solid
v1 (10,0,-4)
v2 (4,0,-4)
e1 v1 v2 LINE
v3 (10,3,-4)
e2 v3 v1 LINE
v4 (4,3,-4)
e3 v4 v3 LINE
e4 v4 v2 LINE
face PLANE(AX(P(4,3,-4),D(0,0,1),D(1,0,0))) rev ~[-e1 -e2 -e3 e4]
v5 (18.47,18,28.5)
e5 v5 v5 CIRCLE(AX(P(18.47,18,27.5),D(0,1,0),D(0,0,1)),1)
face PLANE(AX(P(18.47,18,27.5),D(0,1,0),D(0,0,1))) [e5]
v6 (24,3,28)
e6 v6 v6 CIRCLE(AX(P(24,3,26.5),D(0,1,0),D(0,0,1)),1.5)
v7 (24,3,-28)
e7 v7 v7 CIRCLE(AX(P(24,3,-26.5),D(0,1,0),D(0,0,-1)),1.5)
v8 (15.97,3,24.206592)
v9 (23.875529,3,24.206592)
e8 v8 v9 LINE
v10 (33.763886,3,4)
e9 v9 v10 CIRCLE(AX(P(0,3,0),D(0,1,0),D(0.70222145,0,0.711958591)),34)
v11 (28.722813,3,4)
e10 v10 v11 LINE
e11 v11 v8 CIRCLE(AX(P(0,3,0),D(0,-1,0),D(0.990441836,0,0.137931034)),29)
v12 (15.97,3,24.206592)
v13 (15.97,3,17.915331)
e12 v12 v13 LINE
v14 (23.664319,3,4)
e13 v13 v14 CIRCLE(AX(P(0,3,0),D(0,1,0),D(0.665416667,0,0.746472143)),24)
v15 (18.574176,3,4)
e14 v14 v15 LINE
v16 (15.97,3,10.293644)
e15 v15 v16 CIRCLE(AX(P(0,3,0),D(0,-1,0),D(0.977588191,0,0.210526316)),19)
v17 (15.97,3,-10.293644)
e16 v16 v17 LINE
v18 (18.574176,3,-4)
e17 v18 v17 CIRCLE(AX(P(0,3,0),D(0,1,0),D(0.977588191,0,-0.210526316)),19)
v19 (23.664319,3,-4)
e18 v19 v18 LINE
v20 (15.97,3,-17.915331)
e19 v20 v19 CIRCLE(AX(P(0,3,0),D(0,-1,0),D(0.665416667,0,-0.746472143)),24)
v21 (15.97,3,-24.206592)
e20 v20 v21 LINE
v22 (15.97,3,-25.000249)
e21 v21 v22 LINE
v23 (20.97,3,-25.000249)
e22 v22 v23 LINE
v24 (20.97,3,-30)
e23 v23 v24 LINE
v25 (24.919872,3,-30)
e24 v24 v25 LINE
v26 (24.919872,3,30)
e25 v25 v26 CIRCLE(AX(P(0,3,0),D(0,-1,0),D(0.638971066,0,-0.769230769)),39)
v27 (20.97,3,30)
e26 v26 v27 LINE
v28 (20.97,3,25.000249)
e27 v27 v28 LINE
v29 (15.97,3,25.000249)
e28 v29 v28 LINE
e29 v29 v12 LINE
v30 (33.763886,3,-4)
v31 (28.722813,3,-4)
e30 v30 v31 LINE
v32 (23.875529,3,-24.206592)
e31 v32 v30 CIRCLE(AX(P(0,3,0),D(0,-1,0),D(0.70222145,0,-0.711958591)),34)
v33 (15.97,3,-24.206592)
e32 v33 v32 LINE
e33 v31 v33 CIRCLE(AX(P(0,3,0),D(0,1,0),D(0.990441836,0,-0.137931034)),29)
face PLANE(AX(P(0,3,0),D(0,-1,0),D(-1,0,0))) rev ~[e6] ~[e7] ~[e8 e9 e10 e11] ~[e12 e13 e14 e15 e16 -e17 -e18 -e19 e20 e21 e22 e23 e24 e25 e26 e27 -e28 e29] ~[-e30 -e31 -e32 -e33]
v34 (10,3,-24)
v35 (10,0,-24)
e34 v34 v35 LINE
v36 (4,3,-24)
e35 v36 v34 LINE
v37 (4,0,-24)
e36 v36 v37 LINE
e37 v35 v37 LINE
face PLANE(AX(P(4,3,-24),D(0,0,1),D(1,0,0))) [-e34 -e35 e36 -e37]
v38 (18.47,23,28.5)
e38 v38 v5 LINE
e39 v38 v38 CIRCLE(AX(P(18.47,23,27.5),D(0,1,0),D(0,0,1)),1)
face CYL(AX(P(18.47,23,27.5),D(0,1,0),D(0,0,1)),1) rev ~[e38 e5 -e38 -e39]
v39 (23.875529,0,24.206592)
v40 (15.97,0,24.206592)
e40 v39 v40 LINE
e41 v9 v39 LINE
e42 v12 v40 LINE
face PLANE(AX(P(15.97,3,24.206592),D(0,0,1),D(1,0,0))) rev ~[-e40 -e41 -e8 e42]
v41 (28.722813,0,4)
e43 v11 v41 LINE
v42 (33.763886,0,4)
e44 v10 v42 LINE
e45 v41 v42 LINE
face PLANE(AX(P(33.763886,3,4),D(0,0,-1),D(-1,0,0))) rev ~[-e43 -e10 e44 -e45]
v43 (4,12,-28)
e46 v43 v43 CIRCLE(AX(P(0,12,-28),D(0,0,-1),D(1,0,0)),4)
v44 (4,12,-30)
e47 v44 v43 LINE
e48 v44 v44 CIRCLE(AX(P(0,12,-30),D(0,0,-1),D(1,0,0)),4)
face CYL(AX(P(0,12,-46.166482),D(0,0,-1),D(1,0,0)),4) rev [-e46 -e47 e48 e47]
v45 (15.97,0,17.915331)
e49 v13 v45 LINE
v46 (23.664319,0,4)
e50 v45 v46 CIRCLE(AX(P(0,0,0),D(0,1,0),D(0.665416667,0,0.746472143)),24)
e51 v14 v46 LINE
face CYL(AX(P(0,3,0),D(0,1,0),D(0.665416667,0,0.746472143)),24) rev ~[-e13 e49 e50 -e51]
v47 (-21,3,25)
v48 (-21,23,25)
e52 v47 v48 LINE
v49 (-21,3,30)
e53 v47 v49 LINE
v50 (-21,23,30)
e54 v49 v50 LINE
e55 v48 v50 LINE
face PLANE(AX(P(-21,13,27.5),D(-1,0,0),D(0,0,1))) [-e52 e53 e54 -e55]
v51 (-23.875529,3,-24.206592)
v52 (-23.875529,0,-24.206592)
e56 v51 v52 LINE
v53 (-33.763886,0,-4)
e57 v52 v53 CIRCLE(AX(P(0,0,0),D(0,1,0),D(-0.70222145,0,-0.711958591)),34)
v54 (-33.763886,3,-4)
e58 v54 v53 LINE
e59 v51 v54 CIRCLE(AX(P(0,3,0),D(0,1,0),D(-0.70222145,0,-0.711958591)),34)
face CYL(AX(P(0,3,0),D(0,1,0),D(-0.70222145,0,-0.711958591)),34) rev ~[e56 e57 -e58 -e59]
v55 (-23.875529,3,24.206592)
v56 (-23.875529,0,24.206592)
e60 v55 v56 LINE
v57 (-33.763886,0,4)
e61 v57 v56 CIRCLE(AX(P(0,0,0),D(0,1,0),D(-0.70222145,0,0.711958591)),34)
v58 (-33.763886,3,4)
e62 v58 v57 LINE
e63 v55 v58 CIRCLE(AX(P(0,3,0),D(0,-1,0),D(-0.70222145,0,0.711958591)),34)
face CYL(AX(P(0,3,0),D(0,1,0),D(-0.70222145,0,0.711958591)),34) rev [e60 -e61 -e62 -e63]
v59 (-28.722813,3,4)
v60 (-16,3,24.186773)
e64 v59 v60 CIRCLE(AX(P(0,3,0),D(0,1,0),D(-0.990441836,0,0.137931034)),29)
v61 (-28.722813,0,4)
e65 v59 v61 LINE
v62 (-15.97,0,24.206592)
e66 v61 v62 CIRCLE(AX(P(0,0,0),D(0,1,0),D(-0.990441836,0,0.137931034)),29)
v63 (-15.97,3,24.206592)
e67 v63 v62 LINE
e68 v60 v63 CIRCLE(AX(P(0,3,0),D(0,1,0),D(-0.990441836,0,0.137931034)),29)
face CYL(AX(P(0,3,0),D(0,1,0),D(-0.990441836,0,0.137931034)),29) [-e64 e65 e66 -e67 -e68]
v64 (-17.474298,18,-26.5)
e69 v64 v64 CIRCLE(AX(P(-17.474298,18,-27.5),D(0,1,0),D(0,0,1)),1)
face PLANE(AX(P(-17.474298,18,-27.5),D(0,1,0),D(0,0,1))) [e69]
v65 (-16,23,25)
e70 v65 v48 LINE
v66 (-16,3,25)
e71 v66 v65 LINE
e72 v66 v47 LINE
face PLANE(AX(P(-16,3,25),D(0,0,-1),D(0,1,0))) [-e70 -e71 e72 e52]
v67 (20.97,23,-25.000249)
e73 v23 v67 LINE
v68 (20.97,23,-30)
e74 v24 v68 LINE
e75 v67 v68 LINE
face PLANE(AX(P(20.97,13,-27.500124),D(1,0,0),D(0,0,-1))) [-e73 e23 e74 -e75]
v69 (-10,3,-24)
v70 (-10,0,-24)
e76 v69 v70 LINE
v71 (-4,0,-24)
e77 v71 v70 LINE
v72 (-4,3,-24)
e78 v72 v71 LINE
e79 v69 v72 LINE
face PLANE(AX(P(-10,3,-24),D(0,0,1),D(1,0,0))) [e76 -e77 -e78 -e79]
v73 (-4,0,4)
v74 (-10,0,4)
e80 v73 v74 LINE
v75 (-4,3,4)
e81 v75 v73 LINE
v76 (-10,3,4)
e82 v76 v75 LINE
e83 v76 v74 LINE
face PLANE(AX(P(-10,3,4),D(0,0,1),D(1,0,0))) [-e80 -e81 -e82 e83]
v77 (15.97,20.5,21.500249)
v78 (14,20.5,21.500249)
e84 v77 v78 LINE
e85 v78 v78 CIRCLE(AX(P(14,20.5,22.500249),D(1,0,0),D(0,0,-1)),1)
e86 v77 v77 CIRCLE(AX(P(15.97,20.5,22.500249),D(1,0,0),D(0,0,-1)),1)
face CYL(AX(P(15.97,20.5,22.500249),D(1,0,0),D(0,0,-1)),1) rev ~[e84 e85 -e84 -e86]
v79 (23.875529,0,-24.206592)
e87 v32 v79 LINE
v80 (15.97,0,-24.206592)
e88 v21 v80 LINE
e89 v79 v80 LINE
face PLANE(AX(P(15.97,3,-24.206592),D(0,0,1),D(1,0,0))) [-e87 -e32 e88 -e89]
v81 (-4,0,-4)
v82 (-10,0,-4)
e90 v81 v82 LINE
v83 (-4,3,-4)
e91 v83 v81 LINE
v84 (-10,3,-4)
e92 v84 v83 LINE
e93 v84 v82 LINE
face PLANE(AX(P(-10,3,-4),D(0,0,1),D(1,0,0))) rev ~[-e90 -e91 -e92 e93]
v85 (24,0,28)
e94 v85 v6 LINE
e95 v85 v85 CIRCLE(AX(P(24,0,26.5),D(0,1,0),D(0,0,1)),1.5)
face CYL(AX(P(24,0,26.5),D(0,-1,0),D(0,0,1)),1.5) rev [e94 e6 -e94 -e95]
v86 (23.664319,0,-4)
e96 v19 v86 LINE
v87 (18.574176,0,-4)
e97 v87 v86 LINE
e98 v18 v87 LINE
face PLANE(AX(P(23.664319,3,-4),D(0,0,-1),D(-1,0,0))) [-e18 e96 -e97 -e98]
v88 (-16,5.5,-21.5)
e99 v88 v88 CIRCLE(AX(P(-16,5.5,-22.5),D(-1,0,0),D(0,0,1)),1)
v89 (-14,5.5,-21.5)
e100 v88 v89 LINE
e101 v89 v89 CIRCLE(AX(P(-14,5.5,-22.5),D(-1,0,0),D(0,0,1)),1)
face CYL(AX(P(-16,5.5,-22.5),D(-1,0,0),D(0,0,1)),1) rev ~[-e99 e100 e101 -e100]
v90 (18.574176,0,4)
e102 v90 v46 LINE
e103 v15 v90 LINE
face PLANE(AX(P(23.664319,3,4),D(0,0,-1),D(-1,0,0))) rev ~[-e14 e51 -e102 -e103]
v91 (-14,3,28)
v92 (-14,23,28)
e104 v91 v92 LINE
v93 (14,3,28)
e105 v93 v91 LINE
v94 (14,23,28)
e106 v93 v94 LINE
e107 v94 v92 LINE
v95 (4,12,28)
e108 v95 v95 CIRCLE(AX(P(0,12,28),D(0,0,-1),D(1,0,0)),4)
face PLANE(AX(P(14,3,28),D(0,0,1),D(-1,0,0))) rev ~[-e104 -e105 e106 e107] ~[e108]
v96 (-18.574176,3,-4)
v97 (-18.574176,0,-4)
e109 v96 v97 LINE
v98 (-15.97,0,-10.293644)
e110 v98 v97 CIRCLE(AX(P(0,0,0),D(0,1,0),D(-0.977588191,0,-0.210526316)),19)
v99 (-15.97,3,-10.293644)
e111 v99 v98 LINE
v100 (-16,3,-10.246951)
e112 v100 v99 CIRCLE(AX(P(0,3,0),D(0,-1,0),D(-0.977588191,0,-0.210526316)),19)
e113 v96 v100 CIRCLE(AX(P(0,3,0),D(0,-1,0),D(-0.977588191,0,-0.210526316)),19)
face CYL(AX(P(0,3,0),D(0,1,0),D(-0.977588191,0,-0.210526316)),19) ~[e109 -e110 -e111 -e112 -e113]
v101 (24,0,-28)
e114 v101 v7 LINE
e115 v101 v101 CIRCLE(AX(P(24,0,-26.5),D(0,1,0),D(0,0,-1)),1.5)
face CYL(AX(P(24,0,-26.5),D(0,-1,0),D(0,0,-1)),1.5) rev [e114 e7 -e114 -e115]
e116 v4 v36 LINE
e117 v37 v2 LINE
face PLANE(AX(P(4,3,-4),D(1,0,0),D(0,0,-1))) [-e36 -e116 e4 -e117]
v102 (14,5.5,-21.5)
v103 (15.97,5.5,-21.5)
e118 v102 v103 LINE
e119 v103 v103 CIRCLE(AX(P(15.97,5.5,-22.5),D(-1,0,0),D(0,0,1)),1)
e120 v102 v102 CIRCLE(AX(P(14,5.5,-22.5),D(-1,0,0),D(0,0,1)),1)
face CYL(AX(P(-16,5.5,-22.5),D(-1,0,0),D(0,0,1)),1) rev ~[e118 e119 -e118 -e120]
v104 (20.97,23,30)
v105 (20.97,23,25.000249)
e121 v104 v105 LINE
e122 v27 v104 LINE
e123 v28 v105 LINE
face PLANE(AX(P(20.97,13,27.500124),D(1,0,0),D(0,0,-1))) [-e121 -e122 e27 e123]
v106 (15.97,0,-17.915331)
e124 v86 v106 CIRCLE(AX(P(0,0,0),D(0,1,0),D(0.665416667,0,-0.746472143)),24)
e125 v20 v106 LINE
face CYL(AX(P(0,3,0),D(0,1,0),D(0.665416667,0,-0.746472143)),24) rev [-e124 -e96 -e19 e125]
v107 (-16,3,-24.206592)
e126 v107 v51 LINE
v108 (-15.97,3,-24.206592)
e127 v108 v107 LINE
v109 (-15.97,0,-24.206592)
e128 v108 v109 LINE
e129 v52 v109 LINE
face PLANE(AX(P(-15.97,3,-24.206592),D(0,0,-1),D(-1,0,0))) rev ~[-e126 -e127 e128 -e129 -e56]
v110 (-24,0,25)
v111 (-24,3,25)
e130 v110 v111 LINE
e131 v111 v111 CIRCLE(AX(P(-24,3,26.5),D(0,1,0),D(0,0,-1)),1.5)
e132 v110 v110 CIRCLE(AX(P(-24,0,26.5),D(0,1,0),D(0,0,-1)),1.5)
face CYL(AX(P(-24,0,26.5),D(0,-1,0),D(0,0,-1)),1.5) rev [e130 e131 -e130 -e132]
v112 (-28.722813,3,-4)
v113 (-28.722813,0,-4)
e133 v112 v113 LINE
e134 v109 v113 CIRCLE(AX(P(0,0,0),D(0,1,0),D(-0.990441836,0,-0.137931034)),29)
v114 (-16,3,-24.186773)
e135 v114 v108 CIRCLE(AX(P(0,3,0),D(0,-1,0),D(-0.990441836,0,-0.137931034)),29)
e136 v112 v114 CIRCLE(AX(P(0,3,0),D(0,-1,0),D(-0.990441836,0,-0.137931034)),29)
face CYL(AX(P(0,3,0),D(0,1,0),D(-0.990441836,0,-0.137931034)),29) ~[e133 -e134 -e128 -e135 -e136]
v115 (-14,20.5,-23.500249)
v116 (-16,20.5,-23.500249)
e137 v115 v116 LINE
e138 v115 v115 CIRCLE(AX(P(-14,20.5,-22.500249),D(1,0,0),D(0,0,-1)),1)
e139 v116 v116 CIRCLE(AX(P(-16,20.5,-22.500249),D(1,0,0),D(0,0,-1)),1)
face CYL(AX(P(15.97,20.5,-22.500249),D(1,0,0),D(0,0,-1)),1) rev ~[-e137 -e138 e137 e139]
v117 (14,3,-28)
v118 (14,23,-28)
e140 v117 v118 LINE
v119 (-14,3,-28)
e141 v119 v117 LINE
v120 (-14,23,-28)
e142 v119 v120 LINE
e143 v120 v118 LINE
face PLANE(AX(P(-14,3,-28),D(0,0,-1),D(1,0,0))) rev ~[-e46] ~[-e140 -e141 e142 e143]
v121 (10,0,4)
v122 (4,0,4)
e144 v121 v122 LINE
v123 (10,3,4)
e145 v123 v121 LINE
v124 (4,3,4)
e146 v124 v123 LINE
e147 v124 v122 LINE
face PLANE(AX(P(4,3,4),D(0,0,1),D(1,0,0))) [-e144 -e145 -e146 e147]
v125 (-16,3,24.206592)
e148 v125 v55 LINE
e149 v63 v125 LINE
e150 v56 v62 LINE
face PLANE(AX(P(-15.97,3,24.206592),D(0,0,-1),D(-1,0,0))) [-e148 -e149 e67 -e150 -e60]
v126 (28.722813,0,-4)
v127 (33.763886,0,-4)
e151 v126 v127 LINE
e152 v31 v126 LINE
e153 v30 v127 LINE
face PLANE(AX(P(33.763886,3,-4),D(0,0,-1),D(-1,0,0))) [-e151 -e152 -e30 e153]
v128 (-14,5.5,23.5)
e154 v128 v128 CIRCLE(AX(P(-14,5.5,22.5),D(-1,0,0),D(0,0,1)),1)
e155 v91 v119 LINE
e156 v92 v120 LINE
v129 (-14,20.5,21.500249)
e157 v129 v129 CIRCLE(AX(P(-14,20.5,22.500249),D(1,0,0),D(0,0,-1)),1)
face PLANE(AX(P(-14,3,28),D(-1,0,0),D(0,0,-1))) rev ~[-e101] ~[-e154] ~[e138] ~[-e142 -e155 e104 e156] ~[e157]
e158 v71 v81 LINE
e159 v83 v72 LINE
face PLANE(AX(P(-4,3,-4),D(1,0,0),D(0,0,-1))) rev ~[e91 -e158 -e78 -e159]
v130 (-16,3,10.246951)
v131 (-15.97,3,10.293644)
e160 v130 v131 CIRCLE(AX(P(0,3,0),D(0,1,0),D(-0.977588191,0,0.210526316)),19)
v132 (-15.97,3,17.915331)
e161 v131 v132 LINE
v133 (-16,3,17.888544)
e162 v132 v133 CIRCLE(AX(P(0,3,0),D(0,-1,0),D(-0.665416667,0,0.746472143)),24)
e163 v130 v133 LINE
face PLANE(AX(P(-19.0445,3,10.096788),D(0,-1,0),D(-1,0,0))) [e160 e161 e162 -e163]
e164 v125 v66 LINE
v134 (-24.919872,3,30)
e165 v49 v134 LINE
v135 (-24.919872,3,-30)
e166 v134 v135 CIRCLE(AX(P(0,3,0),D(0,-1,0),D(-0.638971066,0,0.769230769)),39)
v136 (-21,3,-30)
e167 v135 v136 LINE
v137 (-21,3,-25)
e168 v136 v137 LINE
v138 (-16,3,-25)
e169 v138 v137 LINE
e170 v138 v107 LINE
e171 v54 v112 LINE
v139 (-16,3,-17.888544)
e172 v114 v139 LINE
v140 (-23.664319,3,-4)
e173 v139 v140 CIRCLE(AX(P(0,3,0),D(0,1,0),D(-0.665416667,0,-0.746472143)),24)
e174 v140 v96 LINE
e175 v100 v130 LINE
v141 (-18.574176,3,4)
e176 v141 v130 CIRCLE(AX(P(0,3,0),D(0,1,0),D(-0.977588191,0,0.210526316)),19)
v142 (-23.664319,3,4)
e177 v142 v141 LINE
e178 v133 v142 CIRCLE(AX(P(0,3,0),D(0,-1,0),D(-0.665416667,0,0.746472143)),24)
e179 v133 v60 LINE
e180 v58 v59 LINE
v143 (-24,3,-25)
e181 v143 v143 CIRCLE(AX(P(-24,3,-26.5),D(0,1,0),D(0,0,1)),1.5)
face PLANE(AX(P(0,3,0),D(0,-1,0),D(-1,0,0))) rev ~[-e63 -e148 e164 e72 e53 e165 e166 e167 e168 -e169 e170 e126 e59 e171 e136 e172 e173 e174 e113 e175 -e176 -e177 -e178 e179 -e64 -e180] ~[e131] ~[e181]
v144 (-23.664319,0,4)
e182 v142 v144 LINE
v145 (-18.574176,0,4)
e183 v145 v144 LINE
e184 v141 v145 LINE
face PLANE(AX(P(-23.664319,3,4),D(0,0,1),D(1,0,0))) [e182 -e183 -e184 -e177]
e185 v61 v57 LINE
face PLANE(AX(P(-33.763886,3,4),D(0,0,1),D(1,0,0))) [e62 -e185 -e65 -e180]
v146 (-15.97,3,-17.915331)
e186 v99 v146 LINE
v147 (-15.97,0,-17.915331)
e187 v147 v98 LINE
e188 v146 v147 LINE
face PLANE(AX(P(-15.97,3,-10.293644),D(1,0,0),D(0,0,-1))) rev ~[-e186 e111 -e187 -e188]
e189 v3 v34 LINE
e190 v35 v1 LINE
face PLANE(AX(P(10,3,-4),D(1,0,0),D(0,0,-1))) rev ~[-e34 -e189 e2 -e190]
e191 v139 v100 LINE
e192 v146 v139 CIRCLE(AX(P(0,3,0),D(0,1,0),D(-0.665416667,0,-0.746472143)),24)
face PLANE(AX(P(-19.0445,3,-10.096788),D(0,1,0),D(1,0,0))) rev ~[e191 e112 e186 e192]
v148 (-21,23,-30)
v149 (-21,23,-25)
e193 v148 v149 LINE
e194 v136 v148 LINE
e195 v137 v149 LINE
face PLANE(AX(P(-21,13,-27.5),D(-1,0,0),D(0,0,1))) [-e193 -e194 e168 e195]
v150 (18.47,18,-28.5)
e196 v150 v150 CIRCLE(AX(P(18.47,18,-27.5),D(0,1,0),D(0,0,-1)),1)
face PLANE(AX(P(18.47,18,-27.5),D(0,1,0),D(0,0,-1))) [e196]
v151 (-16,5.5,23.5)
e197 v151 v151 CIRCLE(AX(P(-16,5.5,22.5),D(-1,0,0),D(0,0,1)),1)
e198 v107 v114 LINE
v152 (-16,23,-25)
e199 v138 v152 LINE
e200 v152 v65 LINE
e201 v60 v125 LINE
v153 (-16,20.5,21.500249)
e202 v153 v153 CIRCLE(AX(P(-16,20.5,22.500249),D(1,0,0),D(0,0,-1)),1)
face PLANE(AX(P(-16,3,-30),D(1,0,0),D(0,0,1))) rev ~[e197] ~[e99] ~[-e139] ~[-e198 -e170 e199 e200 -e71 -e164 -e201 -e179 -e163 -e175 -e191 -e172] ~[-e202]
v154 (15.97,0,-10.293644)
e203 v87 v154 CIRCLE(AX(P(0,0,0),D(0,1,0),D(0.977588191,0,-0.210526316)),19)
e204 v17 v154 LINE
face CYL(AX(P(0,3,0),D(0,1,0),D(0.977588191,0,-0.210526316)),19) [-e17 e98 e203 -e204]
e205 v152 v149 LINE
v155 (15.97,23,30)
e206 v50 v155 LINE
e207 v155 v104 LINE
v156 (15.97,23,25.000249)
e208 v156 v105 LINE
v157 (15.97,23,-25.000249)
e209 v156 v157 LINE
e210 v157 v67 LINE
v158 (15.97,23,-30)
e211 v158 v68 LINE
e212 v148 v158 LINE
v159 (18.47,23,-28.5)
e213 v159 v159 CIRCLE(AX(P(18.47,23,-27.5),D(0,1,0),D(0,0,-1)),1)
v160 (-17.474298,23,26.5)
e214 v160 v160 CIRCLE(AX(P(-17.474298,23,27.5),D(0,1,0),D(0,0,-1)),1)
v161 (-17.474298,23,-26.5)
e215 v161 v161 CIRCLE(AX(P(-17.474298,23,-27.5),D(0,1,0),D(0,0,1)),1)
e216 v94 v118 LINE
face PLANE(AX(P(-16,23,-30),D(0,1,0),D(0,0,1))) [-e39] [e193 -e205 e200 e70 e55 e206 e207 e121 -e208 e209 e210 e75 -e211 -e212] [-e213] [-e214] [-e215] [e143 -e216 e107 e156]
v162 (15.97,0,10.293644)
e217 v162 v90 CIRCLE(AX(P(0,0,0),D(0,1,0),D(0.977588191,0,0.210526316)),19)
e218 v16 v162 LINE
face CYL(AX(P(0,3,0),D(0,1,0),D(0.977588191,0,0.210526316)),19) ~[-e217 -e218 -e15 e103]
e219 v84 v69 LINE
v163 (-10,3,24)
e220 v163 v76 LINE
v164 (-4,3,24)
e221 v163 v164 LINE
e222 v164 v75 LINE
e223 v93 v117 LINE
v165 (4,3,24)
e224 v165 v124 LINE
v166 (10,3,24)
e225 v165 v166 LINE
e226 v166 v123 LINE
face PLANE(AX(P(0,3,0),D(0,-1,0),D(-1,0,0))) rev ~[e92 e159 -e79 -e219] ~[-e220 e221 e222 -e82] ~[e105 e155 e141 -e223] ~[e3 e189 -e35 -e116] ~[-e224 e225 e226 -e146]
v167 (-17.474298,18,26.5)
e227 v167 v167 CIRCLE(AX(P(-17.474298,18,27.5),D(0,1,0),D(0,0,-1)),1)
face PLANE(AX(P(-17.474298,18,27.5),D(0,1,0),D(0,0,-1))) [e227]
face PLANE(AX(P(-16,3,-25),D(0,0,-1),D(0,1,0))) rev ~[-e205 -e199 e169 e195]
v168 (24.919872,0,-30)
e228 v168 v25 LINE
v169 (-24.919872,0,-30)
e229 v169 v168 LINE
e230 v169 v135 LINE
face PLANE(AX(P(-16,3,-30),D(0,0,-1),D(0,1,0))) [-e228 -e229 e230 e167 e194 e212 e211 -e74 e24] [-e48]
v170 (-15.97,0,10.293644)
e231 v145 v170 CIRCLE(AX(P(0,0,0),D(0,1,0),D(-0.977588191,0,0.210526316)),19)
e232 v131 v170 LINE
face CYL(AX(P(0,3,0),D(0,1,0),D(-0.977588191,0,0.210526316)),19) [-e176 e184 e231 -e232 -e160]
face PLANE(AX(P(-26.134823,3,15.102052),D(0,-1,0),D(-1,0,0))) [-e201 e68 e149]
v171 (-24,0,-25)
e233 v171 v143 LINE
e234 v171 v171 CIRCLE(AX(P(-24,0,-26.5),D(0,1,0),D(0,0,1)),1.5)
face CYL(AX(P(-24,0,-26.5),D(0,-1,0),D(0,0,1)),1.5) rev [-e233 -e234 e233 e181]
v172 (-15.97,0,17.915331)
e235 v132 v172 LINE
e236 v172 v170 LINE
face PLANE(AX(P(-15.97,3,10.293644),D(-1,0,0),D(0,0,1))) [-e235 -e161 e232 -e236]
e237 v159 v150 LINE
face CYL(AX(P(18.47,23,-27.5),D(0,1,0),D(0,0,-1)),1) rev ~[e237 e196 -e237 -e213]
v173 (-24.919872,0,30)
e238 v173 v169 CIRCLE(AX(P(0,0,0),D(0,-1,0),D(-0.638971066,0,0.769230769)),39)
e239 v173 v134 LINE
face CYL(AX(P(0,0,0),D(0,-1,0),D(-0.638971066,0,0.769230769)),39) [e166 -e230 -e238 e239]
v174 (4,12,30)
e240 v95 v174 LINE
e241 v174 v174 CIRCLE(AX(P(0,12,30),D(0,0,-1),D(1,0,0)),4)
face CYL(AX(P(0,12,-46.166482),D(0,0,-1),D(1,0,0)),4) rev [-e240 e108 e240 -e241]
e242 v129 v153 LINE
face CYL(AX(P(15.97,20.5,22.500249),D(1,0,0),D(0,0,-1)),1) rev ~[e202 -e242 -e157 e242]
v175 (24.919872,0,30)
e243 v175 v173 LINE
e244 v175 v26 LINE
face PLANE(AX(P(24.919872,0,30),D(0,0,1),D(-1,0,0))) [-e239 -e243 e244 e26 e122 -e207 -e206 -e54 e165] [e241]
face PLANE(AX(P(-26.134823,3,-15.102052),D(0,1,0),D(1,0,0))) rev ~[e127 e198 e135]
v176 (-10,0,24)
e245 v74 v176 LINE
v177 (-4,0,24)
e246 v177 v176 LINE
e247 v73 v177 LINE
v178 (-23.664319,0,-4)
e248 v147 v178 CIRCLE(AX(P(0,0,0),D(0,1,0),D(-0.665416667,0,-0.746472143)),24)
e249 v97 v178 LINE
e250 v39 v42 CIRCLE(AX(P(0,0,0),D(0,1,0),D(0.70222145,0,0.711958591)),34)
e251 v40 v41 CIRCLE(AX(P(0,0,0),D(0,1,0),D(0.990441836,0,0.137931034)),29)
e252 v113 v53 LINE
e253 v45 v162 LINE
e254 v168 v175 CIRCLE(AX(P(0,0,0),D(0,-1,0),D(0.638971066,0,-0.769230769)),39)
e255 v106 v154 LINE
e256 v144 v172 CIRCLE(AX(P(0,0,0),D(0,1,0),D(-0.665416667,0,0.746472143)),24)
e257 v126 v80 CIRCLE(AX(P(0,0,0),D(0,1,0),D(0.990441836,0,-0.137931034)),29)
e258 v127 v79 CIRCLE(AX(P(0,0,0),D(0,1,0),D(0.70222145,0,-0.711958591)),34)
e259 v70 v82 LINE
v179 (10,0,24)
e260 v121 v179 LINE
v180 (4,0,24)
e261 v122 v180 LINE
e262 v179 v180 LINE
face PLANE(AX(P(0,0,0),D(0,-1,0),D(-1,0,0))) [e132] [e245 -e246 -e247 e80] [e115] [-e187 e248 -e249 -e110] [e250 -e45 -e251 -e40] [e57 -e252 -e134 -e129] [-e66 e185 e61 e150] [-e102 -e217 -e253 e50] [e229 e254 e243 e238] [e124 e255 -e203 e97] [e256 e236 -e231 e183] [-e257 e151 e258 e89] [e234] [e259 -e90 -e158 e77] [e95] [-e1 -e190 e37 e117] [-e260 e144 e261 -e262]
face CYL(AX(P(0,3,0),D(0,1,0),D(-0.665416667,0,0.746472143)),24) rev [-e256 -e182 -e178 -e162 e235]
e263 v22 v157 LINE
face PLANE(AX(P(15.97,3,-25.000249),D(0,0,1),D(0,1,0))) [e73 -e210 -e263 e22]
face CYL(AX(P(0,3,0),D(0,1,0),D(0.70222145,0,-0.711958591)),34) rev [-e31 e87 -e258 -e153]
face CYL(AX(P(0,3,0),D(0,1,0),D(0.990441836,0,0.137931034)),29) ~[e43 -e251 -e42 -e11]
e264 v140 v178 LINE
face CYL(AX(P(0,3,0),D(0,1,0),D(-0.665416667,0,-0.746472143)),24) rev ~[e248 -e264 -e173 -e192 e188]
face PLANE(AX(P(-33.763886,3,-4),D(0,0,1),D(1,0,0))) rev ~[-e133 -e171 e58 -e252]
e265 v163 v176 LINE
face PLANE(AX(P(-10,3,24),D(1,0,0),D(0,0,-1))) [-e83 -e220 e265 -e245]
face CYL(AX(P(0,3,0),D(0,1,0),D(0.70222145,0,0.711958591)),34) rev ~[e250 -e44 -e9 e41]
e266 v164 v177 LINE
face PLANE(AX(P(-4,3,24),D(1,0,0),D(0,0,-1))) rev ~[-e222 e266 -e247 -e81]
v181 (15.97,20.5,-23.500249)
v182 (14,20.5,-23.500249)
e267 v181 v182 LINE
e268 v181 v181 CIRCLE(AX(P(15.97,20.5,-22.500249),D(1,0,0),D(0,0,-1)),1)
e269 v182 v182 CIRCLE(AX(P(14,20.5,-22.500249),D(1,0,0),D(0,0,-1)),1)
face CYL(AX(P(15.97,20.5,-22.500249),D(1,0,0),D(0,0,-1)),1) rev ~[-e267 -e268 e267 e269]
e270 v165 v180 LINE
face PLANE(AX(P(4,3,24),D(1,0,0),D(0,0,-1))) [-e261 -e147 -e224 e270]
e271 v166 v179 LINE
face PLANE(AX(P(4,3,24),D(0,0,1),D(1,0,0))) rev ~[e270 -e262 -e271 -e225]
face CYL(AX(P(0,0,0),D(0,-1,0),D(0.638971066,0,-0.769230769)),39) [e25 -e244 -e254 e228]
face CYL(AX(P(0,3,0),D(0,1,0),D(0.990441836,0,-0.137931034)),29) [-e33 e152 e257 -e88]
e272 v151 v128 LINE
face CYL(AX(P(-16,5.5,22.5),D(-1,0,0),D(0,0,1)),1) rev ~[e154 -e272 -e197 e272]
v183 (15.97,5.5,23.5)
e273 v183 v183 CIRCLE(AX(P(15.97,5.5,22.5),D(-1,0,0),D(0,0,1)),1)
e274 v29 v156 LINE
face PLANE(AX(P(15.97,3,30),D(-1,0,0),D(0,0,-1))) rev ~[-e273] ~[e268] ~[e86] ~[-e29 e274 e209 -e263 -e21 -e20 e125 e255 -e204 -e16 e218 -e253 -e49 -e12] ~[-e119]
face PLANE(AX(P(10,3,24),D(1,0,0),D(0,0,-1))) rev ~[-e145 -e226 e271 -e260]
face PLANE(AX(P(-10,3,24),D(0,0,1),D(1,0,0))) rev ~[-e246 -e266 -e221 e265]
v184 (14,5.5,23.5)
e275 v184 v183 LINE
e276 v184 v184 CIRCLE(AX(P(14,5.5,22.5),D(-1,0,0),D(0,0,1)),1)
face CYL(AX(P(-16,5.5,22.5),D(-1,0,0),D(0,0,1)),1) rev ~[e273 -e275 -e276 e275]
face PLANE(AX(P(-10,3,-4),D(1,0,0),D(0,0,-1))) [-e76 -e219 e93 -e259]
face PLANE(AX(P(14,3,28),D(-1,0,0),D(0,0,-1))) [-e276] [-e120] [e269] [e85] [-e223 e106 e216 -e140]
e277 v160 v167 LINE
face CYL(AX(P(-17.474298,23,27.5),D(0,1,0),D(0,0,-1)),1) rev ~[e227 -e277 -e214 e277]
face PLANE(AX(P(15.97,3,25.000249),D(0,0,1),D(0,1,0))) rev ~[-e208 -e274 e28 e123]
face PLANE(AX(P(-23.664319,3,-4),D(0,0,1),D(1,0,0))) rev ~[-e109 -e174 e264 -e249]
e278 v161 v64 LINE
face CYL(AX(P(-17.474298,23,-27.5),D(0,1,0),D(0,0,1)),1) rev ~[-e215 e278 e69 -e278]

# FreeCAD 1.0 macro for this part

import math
import FreeCAD as App
import Part
import Sketcher
from FreeCAD import Vector


def add_polygon(sketch, points):
    """Adds a closed chain of lines whose ends are joined by coincident constraints."""
    first, n = sketch.GeometryCount, len(points)
    for a, b in zip(points, points[1:] + points[:1]):
        sketch.addGeometry(Part.LineSegment(App.Vector(*a, 0), App.Vector(*b, 0)), False)
    for i in range(n):
        sketch.addConstraint(Sketcher.Constraint("Coincident", first + i, 2, first + (i + 1) % n, 1))

doc = App.newDocument("Part")
body = doc.addObject("PartDesign::Body", "Body")

sketch1 = body.newObject("Sketcher::SketchObject", "Sketch")
sketch1.AttachmentSupport = (doc.getObject("XZ_Plane"), [""])
sketch1.MapMode = "FlatFace"
sketch1.addGeometry([
    Part.LineSegment(Vector(24.919872, -30, 0), Vector(-24.919872, -30, 0)),
    Part.ArcOfCircle(Part.Circle(Vector(0, 0, 0), Vector(0, 0, 1), 39), math.radians(129.715137), math.radians(230.284863)),
    Part.LineSegment(Vector(-24.919872, 30, 0), Vector(24.919872, 30, 0)),
    Part.ArcOfCircle(Part.Circle(Vector(0, 0, 0), Vector(0, 0, 1), 39), math.radians(-50.284863), math.radians(50.284863)),
    Part.Circle(Vector(24, 26.5, 0), Vector(0, 0, 1), 1.5),
    Part.Circle(Vector(-24, 26.5, 0), Vector(0, 0, 1), 1.5),
    Part.Circle(Vector(24, -26.5, 0), Vector(0, 0, 1), 1.5),
    Part.Circle(Vector(-24, -26.5, 0), Vector(0, 0, 1), 1.5),
], False)
sketch1.addConstraint([
    Sketcher.Constraint("Coincident", 0, 2, 1, 2),
    Sketcher.Constraint("Coincident", 1, 1, 2, 1),
    Sketcher.Constraint("Coincident", 2, 2, 3, 2),
    Sketcher.Constraint("Coincident", 3, 1, 0, 1),
    Sketcher.Constraint("Horizontal", 0),
    Sketcher.Constraint("Horizontal", 2),
    Sketcher.Constraint("Coincident", 1, 3, -1, 1),
    Sketcher.Constraint("Coincident", 3, 3, -1, 1),
    Sketcher.Constraint("Equal", 1, 3),
    Sketcher.Constraint("Equal", 4, 5),
    Sketcher.Constraint("Equal", 5, 6),
    Sketcher.Constraint("Equal", 6, 7),
    Sketcher.Constraint("Symmetric", 5, 3, 6, 3, -1, 1),
    Sketcher.Constraint("Symmetric", 4, 3, 7, 3, -1, 1),
    Sketcher.Constraint("Symmetric", 4, 3, 5, 3, -2),
    Sketcher.Constraint("Vertical", 0, 2, 1, 1),
    Sketcher.Constraint("Diameter", 4, 3.0),
    Sketcher.Constraint("Radius", 1, 39.0),
    Sketcher.Constraint("DistanceX", -1, 1, 4, 3, 24.0),
    Sketcher.Constraint("DistanceY", 0, 2, -1, 1, 30.0),
    Sketcher.Constraint("DistanceY", 6, 3, 4, 3, 53.0),
])
pad1 = body.newObject("PartDesign::Pad", "Pad")
pad1.Profile = sketch1
pad1.Length = 3
pad1.Reversed = True

sketch2 = body.newObject("Sketcher::SketchObject", "Sketch001")
sketch2.AttachmentSupport = (doc.getObject("XZ_Plane"), [""])
sketch2.MapMode = "FlatFace"
sketch2.AttachmentOffset = App.Placement(Vector(0, 0, -3), App.Rotation())
add_polygon(sketch2, [(15.97, -30), (-16, -30), (-16, 30), (15.97, 30)])
add_polygon(sketch2, [(-14, 28), (-14, -28), (14, -28), (14, 28)])
sketch2.addConstraint([
    Sketcher.Constraint("Horizontal", 0),
    Sketcher.Constraint("Vertical", 1),
    Sketcher.Constraint("Horizontal", 2),
    Sketcher.Constraint("Vertical", 3),
    Sketcher.Constraint("Vertical", 4),
    Sketcher.Constraint("Horizontal", 5),
    Sketcher.Constraint("Vertical", 6),
    Sketcher.Constraint("Horizontal", 7),
    Sketcher.Constraint("Symmetric", 4, 2, 6, 2, -1, 1),
    Sketcher.Constraint("DistanceX", 5, 1, 5, 2, 28.0),
    Sketcher.Constraint("DistanceY", 1, 1, 1, 2, 60.0),
    Sketcher.Constraint("DistanceY", 4, 2, 4, 1, 56.0),
    Sketcher.Constraint("DistanceX", 0, 2, -1, 1, 16.0),
    Sketcher.Constraint("DistanceY", 0, 2, -1, 1, 30.0),
    Sketcher.Constraint("DistanceX", 0, 2, 0, 1, 31.97),
])
pad2 = body.newObject("PartDesign::Pad", "Pad001")
pad2.Profile = sketch2
pad2.Length = 20
pad2.Reversed = True

sketch3 = body.newObject("Sketcher::SketchObject", "Sketch002")
sketch3.AttachmentSupport = (doc.getObject("YZ_Plane"), [""])
sketch3.MapMode = "FlatFace"
sketch3.AttachmentOffset = App.Placement(Vector(0, 0, 15.97), App.Rotation())
add_polygon(sketch3, [(23, -25.000249), (3, -25.000249), (3, -30), (23, -30)])
add_polygon(sketch3, [(23, 30), (3, 30), (3, 25.000249), (23, 25.000249)])
sketch3.addConstraint([
    Sketcher.Constraint("Horizontal", 0),
    Sketcher.Constraint("Vertical", 1),
    Sketcher.Constraint("Horizontal", 2),
    Sketcher.Constraint("Vertical", 3),
    Sketcher.Constraint("Horizontal", 4),
    Sketcher.Constraint("Vertical", 5),
    Sketcher.Constraint("Horizontal", 6),
    Sketcher.Constraint("Vertical", 7),
    Sketcher.Constraint("Symmetric", 1, 2, 4, 2, -1),
    Sketcher.Constraint("Symmetric", 3, 2, 6, 2, -1),
    Sketcher.Constraint("DistanceX", 0, 2, 0, 1, 20.0),
    Sketcher.Constraint("DistanceX", -1, 1, 0, 2, 3.0),
    Sketcher.Constraint("DistanceY", 1, 2, -1, 1, 30.0),
    Sketcher.Constraint("DistanceY", 1, 2, 1, 1, 4.999751),
])
pad3 = body.newObject("PartDesign::Pad", "Pad002")
pad3.Profile = sketch3
pad3.Length = 5

sketch4 = body.newObject("Sketcher::SketchObject", "Sketch003")
sketch4.AttachmentSupport = (doc.getObject("YZ_Plane"), [""])
sketch4.MapMode = "FlatFace"
sketch4.AttachmentOffset = App.Placement(Vector(0, 0, -16), App.Rotation())
add_polygon(sketch4, [(23, -30), (3, -30), (3, -25), (23, -25)])
add_polygon(sketch4, [(23, 25), (3, 25), (3, 30), (23, 30)])
sketch4.addConstraint([
    Sketcher.Constraint("Horizontal", 0),
    Sketcher.Constraint("Vertical", 1),
    Sketcher.Constraint("Horizontal", 2),
    Sketcher.Constraint("Vertical", 3),
    Sketcher.Constraint("Horizontal", 4),
    Sketcher.Constraint("Vertical", 5),
    Sketcher.Constraint("Horizontal", 6),
    Sketcher.Constraint("Vertical", 7),
    Sketcher.Constraint("Symmetric", 1, 2, 4, 2, -1),
    Sketcher.Constraint("Symmetric", 3, 2, 6, 2, -1),
    Sketcher.Constraint("DistanceX", 0, 2, 0, 1, 20.0),
    Sketcher.Constraint("DistanceY", 1, 1, 1, 2, 5.0),
    Sketcher.Constraint("DistanceX", -1, 1, 0, 2, 3.0),
    Sketcher.Constraint("DistanceY", 0, 2, -1, 1, 30.0),
])
pad4 = body.newObject("PartDesign::Pad", "Pad003")
pad4.Profile = sketch4
pad4.Length = 5
pad4.Reversed = True

sketch5 = body.newObject("Sketcher::SketchObject", "Sketch004")
sketch5.AttachmentSupport = (doc.getObject("XZ_Plane"), [""])
sketch5.MapMode = "FlatFace"
sketch5.AttachmentOffset = App.Placement(Vector(0, 0, -23), App.Rotation())
sketch5.addGeometry([
    Part.Circle(Vector(18.47, 27.5, 0), Vector(0, 0, 1), 1),
    Part.Circle(Vector(18.47, -27.5, 0), Vector(0, 0, 1), 1),
    Part.Circle(Vector(-17.474298, 27.5, 0), Vector(0, 0, 1), 1),
    Part.Circle(Vector(-17.474298, -27.5, 0), Vector(0, 0, 1), 1),
], False)
sketch5.addConstraint([
    Sketcher.Constraint("Equal", 0, 1),
    Sketcher.Constraint("Equal", 1, 2),
    Sketcher.Constraint("Equal", 2, 3),
    Sketcher.Constraint("Symmetric", 0, 3, 1, 3, -1),
    Sketcher.Constraint("Symmetric", 2, 3, 3, 3, -1),
    Sketcher.Constraint("Horizontal", 0, 3, 2, 3),
    Sketcher.Constraint("Diameter", 0, 2.0),
    Sketcher.Constraint("DistanceY", 1, 3, 0, 3, 55.0),
    Sketcher.Constraint("DistanceX", -1, 1, 0, 3, 18.47),
    Sketcher.Constraint("DistanceX", 2, 3, -1, 1, 17.474298),
])
pocket1 = body.newObject("PartDesign::Pocket", "Pocket")
pocket1.Profile = sketch5
pocket1.Length = 5
pocket1.Reversed = True

sketch6 = body.newObject("Sketcher::SketchObject", "Sketch005")
sketch6.AttachmentSupport = (doc.getObject("YZ_Plane"), [""])
sketch6.MapMode = "FlatFace"
sketch6.AttachmentOffset = App.Placement(Vector(0, 0, -16), App.Rotation())
sketch6.addGeometry([
    Part.Circle(Vector(5.5, -22.5, 0), Vector(0, 0, 1), 1),
    Part.Circle(Vector(5.5, 22.5, 0), Vector(0, 0, 1), 1),
], False)
sketch6.addConstraint([
    Sketcher.Constraint("Equal", 0, 1),
    Sketcher.Constraint("Symmetric", 0, 3, 1, 3, -1),
    Sketcher.Constraint("Diameter", 0, 2.0),
    Sketcher.Constraint("DistanceY", 0, 3, 1, 3, 45.0),
    Sketcher.Constraint("DistanceX", -1, 1, 0, 3, 5.5),
])
pocket2 = body.newObject("PartDesign::Pocket", "Pocket001")
pocket2.Profile = sketch6
pocket2.Type = "ThroughAll"
pocket2.Reversed = True

sketch7 = body.newObject("Sketcher::SketchObject", "Sketch006")
sketch7.AttachmentSupport = (doc.getObject("YZ_Plane"), [""])
sketch7.MapMode = "FlatFace"
sketch7.AttachmentOffset = App.Placement(Vector(0, 0, 15.97), App.Rotation())
sketch7.addGeometry([
    Part.Circle(Vector(20.5, -22.500249, 0), Vector(0, 0, 1), 1),
    Part.Circle(Vector(20.5, 22.500249, 0), Vector(0, 0, 1), 1),
], False)
sketch7.addConstraint([
    Sketcher.Constraint("Equal", 0, 1),
    Sketcher.Constraint("Symmetric", 0, 3, 1, 3, -1),
    Sketcher.Constraint("Diameter", 0, 2.0),
    Sketcher.Constraint("DistanceX", -1, 1, 0, 3, 20.5),
    Sketcher.Constraint("DistanceY", 0, 3, -1, 1, 22.500249),
])
pocket3 = body.newObject("PartDesign::Pocket", "Pocket002")
pocket3.Profile = sketch7
pocket3.Type = "ThroughAll"

sketch8 = body.newObject("Sketcher::SketchObject", "Sketch007")
sketch8.AttachmentSupport = (doc.getObject("XZ_Plane"), [""])
sketch8.MapMode = "FlatFace"
sketch8.AttachmentOffset = App.Placement(Vector(0, 0, -3), App.Rotation())
sketch8.addGeometry(Part.LineSegment(Vector(15.97, -17.915331, 0), Vector(15.97, -10.293644, 0)), False)
sketch8.addGeometry(Part.ArcOfCircle(Part.Circle(Vector(0, 0, 0), Vector(0, 0, 1), 19), math.radians(-32.804261), math.radians(-12.153197)), False)
sketch8.addGeometry(Part.LineSegment(Vector(18.574176, -4, 0), Vector(23.664319, -4, 0)), False)
sketch8.addGeometry(Part.ArcOfCircle(Part.Circle(Vector(0, 0, 0), Vector(0, 0, 1), 24), math.radians(-48.285701), math.radians(-9.594068)), False)
sketch8.addGeometry(Part.LineSegment(Vector(15.97, 10.293644, 0), Vector(15.97, 17.915331, 0)), False)
sketch8.addGeometry(Part.ArcOfCircle(Part.Circle(Vector(0, 0, 0), Vector(0, 0, 1), 24), math.radians(9.594068), math.radians(48.285701)), False)
sketch8.addGeometry(Part.LineSegment(Vector(23.664319, 4, 0), Vector(18.574176, 4, 0)), False)
sketch8.addGeometry(Part.ArcOfCircle(Part.Circle(Vector(0, 0, 0), Vector(0, 0, 1), 19), math.radians(12.153197), math.radians(32.804261)), False)
sketch8.addGeometry(Part.LineSegment(Vector(23.875529, -24.206592, 0), Vector(15.97, -24.206592, 0)), False)
sketch8.addGeometry(Part.ArcOfCircle(Part.Circle(Vector(0, 0, 0), Vector(0, 0, 1), 29), math.radians(-56.585661), math.radians(-7.928142)), False)
sketch8.addGeometry(Part.LineSegment(Vector(28.722813, -4, 0), Vector(33.763886, -4, 0)), False)
sketch8.addGeometry(Part.ArcOfCircle(Part.Circle(Vector(0, 0, 0), Vector(0, 0, 1), 34), math.radians(-45.394496), math.radians(-6.756327)), False)
sketch8.addGeometry(Part.LineSegment(Vector(15.97, 24.206592, 0), Vector(23.875529, 24.206592, 0)), False)
sketch8.addGeometry(Part.ArcOfCircle(Part.Circle(Vector(0, 0, 0), Vector(0, 0, 1), 34), math.radians(6.756327), math.radians(45.394496)), False)
sketch8.addGeometry(Part.LineSegment(Vector(33.763886, 4, 0), Vector(28.722813, 4, 0)), False)
sketch8.addGeometry(Part.ArcOfCircle(Part.Circle(Vector(0, 0, 0), Vector(0, 0, 1), 29), math.radians(7.928142), math.radians(56.585661)), False)
sketch8.addGeometry(Part.LineSegment(Vector(-15.97, 17.915331, 0), Vector(-15.97, 10.293644, 0)), False)
sketch8.addGeometry(Part.ArcOfCircle(Part.Circle(Vector(0, 0, 0), Vector(0, 0, 1), 19), math.radians(147.195739), math.radians(167.846803)), False)
sketch8.addGeometry(Part.LineSegment(Vector(-18.574176, 4, 0), Vector(-23.664319, 4, 0)), False)
sketch8.addGeometry(Part.ArcOfCircle(Part.Circle(Vector(0, 0, 0), Vector(0, 0, 1), 24), math.radians(131.714299), math.radians(170.405932)), False)
sketch8.addGeometry(Part.LineSegment(Vector(-15.97, -10.293644, 0), Vector(-15.97, -17.915331, 0)), False)
sketch8.addGeometry(Part.ArcOfCircle(Part.Circle(Vector(0, 0, 0), Vector(0, 0, 1), 24), math.radians(-170.405932), math.radians(-131.714299)), False)
sketch8.addGeometry(Part.LineSegment(Vector(-23.664319, -4, 0), Vector(-18.574176, -4, 0)), False)
sketch8.addGeometry(Part.ArcOfCircle(Part.Circle(Vector(0, 0, 0), Vector(0, 0, 1), 19), math.radians(-167.846803), math.radians(-147.195739)), False)
sketch8.addGeometry(Part.LineSegment(Vector(-15.97, -24.206592, 0), Vector(-23.875529, -24.206592, 0)), False)
sketch8.addGeometry(Part.ArcOfCircle(Part.Circle(Vector(0, 0, 0), Vector(0, 0, 1), 34), math.radians(-173.243673), math.radians(-134.605504)), False)
sketch8.addGeometry(Part.LineSegment(Vector(-33.763886, -4, 0), Vector(-28.722813, -4, 0)), False)
sketch8.addGeometry(Part.ArcOfCircle(Part.Circle(Vector(0, 0, 0), Vector(0, 0, 1), 29), math.radians(-172.071858), math.radians(-123.414339)), False)
sketch8.addGeometry(Part.LineSegment(Vector(-23.875529, 24.206592, 0), Vector(-15.97, 24.206592, 0)), False)
sketch8.addGeometry(Part.ArcOfCircle(Part.Circle(Vector(0, 0, 0), Vector(0, 0, 1), 29), math.radians(123.414339), math.radians(172.071858)), False)
sketch8.addGeometry(Part.LineSegment(Vector(-28.722813, 4, 0), Vector(-33.763886, 4, 0)), False)
sketch8.addGeometry(Part.ArcOfCircle(Part.Circle(Vector(0, 0, 0), Vector(0, 0, 1), 34), math.radians(134.605504), math.radians(173.243673)), False)
add_polygon(sketch8, [(-10, -24), (-10, -4), (-4, -4), (-4, -24)])
add_polygon(sketch8, [(4, -24), (4, -4), (10, -4), (10, -24)])
add_polygon(sketch8, [(4, 4), (4, 24), (10, 24), (10, 4)])
add_polygon(sketch8, [(-10, 4), (-10, 24), (-4, 24), (-4, 4)])
sketch8.addConstraint([
    Sketcher.Constraint("Coincident", 0, 2, 1, 1),
    Sketcher.Constraint("Coincident", 1, 2, 2, 1),
    Sketcher.Constraint("Coincident", 2, 2, 3, 2),
    Sketcher.Constraint("Coincident", 3, 1, 0, 1),
    Sketcher.Constraint("Coincident", 4, 2, 5, 2),
    Sketcher.Constraint("Coincident", 5, 1, 6, 1),
    Sketcher.Constraint("Coincident", 6, 2, 7, 1),
    Sketcher.Constraint("Coincident", 7, 2, 4, 1),
    Sketcher.Constraint("Coincident", 8, 2, 9, 1),
    Sketcher.Constraint("Coincident", 9, 2, 10, 1),
    Sketcher.Constraint("Coincident", 10, 2, 11, 2),
    Sketcher.Constraint("Coincident", 11, 1, 8, 1),
    Sketcher.Constraint("Coincident", 12, 2, 13, 2),
    Sketcher.Constraint("Coincident", 13, 1, 14, 1),
    Sketcher.Constraint("Coincident", 14, 2, 15, 1),
    Sketcher.Constraint("Coincident", 15, 2, 12, 1),
    Sketcher.Constraint("Coincident", 16, 2, 17, 1),
    Sketcher.Constraint("Coincident", 17, 2, 18, 1),
    Sketcher.Constraint("Coincident", 18, 2, 19, 2),
    Sketcher.Constraint("Coincident", 19, 1, 16, 1),
    Sketcher.Constraint("Coincident", 20, 2, 21, 2),
    Sketcher.Constraint("Coincident", 21, 1, 22, 1),
    Sketcher.Constraint("Coincident", 22, 2, 23, 1),
    Sketcher.Constraint("Coincident", 23, 2, 20, 1),
    Sketcher.Constraint("Coincident", 24, 2, 25, 2),
    Sketcher.Constraint("Coincident", 25, 1, 26, 1),
    Sketcher.Constraint("Coincident", 26, 2, 27, 1),
    Sketcher.Constraint("Coincident", 27, 2, 24, 1),
    Sketcher.Constraint("Coincident", 28, 2, 29, 1),
    Sketcher.Constraint("Coincident", 29, 2, 30, 1),
    Sketcher.Constraint("Coincident", 30, 2, 31, 2),
    Sketcher.Constraint("Coincident", 31, 1, 28, 1),
    Sketcher.Constraint("Vertical", 0),
    Sketcher.Constraint("Horizontal", 2),
    Sketcher.Constraint("Vertical", 4),
    Sketcher.Constraint("Horizontal", 6),
    Sketcher.Constraint("Horizontal", 8),
    Sketcher.Constraint("Horizontal", 10),
    Sketcher.Constraint("Horizontal", 12),
    Sketcher.Constraint("Horizontal", 14),
    Sketcher.Constraint("Vertical", 16),
    Sketcher.Constraint("Horizontal", 18),
    Sketcher.Constraint("Vertical", 20),
    Sketcher.Constraint("Horizontal", 22),
    Sketcher.Constraint("Horizontal", 24),
    Sketcher.Constraint("Horizontal", 26),
    Sketcher.Constraint("Horizontal", 28),
    Sketcher.Constraint("Horizontal", 30),
    Sketcher.Constraint("Vertical", 32),
    Sketcher.Constraint("Horizontal", 33),
    Sketcher.Constraint("Vertical", 34),
    Sketcher.Constraint("Horizontal", 35),
    Sketcher.Constraint("Vertical", 36),
    Sketcher.Constraint("Horizontal", 37),
    Sketcher.Constraint("Vertical", 38),
    Sketcher.Constraint("Horizontal", 39),
    Sketcher.Constraint("Vertical", 40),
    Sketcher.Constraint("Horizontal", 41),
    Sketcher.Constraint("Vertical", 42),
    Sketcher.Constraint("Horizontal", 43),
    Sketcher.Constraint("Vertical", 44),
    Sketcher.Constraint("Horizontal", 45),
    Sketcher.Constraint("Vertical", 46),
    Sketcher.Constraint("Horizontal", 47),
    Sketcher.Constraint("Coincident", 1, 3, -1, 1),
    Sketcher.Constraint("Coincident", 3, 3, -1, 1),
    Sketcher.Constraint("Coincident", 5, 3, -1, 1),
    Sketcher.Constraint("Coincident", 7, 3, -1, 1),
    Sketcher.Constraint("Coincident", 9, 3, -1, 1),
    Sketcher.Constraint("Coincident", 11, 3, -1, 1),
    Sketcher.Constraint("Coincident", 13, 3, -1, 1),
    Sketcher.Constraint("Coincident", 15, 3, -1, 1),
    Sketcher.Constraint("Coincident", 17, 3, -1, 1),
    Sketcher.Constraint("Coincident", 19, 3, -1, 1),
    Sketcher.Constraint("Coincident", 21, 3, -1, 1),
    Sketcher.Constraint("Coincident", 23, 3, -1, 1),
    Sketcher.Constraint("Coincident", 25, 3, -1, 1),
    Sketcher.Constraint("Coincident", 27, 3, -1, 1),
    Sketcher.Constraint("Coincident", 29, 3, -1, 1),
    Sketcher.Constraint("Coincident", 31, 3, -1, 1),
    Sketcher.Constraint("Equal", 3, 5),
    Sketcher.Constraint("Equal", 1, 7),
    Sketcher.Constraint("Equal", 11, 13),
    Sketcher.Constraint("Equal", 9, 15),
    Sketcher.Constraint("Equal", 7, 17),
    Sketcher.Constraint("Equal", 5, 19),
    Sketcher.Constraint("Equal", 19, 21),
    Sketcher.Constraint("Equal", 17, 23),
    Sketcher.Constraint("Equal", 13, 25),
    Sketcher.Constraint("Equal", 15, 27),
    Sketcher.Constraint("Equal", 27, 29),
    Sketcher.Constraint("Equal", 25, 31),
    Sketcher.Constraint("Symmetric", 34, 2, 40, 2, -1, 1),
    Sketcher.Constraint("Symmetric", 32, 2, 42, 2, -1, 1),
    Sketcher.Constraint("Symmetric", 38, 2, 44, 2, -1, 1),
    Sketcher.Constraint("Symmetric", 36, 2, 46, 2, -1, 1),
    Sketcher.Constraint("Symmetric", 33, 2, 36, 2, -2),
    Sketcher.Constraint("Symmetric", 35, 2, 38, 2, -2),
    Sketcher.Constraint("Horizontal", 2, 2, 9, 2),
    Sketcher.Constraint("Horizontal", 6, 2, 13, 1),
    Sketcher.Constraint("Horizontal", 7, 2, 16, 2),
    Sketcher.Constraint("Horizontal", 14, 2, 17, 2),
    Sketcher.Constraint("Horizontal", 3, 1, 20, 2),
    Sketcher.Constraint("Horizontal", 10, 2, 21, 1),
    Sketcher.Constraint("Horizontal", 11, 1, 24, 2),
    Sketcher.Constraint("Horizontal", 22, 2, 25, 1),
    Sketcher.Constraint("Horizontal", 15, 2, 28, 2),
    Sketcher.Constraint("Horizontal", 18, 2, 29, 2),
    Sketcher.Constraint("Horizontal", 26, 2, 32, 2),
    Sketcher.Constraint("Horizontal", 30, 2, 42, 2),
    Sketcher.Constraint("Vertical", 3, 1, 4, 2),
    Sketcher.Constraint("Vertical", 7, 2, 8, 2),
    Sketcher.Constraint("Vertical", 11, 1, 12, 2),
    Sketcher.Constraint("Radius", 1, 19.0),
    Sketcher.Constraint("Radius", 3, 24.0),
    Sketcher.Constraint("Radius", 9, 29.0),
    Sketcher.Constraint("Radius", 11, 34.0),
    Sketcher.Constraint("DistanceX", 33, 1, 33, 2, 6.0),
    Sketcher.Constraint("DistanceY", 32, 1, 32, 2, 20.0),
    Sketcher.Constraint("DistanceY", 1, 2, -1, 1, 4.0),
    Sketcher.Constraint("DistanceX", 32, 2, -1, 1, 10.0),
    Sketcher.Constraint("DistanceX", -1, 1, 0, 2, 15.97),
])
pocket4 = body.newObject("PartDesign::Pocket", "Pocket003")
pocket4.Profile = sketch8
pocket4.Length = 10
pocket4.Reversed = True

sketch9 = body.newObject("Sketcher::SketchObject", "Sketch008")
sketch9.AttachmentSupport = (doc.getObject("XY_Plane"), [""])
sketch9.MapMode = "FlatFace"
sketch9.AttachmentOffset = App.Placement(Vector(0, 0, 30), App.Rotation())
sketch9.addGeometry(Part.Circle(Vector(0, 12, 0), Vector(0, 0, 1), 4), False)
sketch9.addConstraint([
    Sketcher.Constraint("PointOnObject", 0, 3, -2),
    Sketcher.Constraint("Diameter", 0, 8.0),
    Sketcher.Constraint("DistanceY", -1, 1, 0, 3, 12.0),
])
pocket5 = body.newObject("PartDesign::Pocket", "Pocket004")
pocket5.Profile = sketch9
pocket5.Type = "ThroughAll"
pocket5.Midplane = True

doc.recompute()
